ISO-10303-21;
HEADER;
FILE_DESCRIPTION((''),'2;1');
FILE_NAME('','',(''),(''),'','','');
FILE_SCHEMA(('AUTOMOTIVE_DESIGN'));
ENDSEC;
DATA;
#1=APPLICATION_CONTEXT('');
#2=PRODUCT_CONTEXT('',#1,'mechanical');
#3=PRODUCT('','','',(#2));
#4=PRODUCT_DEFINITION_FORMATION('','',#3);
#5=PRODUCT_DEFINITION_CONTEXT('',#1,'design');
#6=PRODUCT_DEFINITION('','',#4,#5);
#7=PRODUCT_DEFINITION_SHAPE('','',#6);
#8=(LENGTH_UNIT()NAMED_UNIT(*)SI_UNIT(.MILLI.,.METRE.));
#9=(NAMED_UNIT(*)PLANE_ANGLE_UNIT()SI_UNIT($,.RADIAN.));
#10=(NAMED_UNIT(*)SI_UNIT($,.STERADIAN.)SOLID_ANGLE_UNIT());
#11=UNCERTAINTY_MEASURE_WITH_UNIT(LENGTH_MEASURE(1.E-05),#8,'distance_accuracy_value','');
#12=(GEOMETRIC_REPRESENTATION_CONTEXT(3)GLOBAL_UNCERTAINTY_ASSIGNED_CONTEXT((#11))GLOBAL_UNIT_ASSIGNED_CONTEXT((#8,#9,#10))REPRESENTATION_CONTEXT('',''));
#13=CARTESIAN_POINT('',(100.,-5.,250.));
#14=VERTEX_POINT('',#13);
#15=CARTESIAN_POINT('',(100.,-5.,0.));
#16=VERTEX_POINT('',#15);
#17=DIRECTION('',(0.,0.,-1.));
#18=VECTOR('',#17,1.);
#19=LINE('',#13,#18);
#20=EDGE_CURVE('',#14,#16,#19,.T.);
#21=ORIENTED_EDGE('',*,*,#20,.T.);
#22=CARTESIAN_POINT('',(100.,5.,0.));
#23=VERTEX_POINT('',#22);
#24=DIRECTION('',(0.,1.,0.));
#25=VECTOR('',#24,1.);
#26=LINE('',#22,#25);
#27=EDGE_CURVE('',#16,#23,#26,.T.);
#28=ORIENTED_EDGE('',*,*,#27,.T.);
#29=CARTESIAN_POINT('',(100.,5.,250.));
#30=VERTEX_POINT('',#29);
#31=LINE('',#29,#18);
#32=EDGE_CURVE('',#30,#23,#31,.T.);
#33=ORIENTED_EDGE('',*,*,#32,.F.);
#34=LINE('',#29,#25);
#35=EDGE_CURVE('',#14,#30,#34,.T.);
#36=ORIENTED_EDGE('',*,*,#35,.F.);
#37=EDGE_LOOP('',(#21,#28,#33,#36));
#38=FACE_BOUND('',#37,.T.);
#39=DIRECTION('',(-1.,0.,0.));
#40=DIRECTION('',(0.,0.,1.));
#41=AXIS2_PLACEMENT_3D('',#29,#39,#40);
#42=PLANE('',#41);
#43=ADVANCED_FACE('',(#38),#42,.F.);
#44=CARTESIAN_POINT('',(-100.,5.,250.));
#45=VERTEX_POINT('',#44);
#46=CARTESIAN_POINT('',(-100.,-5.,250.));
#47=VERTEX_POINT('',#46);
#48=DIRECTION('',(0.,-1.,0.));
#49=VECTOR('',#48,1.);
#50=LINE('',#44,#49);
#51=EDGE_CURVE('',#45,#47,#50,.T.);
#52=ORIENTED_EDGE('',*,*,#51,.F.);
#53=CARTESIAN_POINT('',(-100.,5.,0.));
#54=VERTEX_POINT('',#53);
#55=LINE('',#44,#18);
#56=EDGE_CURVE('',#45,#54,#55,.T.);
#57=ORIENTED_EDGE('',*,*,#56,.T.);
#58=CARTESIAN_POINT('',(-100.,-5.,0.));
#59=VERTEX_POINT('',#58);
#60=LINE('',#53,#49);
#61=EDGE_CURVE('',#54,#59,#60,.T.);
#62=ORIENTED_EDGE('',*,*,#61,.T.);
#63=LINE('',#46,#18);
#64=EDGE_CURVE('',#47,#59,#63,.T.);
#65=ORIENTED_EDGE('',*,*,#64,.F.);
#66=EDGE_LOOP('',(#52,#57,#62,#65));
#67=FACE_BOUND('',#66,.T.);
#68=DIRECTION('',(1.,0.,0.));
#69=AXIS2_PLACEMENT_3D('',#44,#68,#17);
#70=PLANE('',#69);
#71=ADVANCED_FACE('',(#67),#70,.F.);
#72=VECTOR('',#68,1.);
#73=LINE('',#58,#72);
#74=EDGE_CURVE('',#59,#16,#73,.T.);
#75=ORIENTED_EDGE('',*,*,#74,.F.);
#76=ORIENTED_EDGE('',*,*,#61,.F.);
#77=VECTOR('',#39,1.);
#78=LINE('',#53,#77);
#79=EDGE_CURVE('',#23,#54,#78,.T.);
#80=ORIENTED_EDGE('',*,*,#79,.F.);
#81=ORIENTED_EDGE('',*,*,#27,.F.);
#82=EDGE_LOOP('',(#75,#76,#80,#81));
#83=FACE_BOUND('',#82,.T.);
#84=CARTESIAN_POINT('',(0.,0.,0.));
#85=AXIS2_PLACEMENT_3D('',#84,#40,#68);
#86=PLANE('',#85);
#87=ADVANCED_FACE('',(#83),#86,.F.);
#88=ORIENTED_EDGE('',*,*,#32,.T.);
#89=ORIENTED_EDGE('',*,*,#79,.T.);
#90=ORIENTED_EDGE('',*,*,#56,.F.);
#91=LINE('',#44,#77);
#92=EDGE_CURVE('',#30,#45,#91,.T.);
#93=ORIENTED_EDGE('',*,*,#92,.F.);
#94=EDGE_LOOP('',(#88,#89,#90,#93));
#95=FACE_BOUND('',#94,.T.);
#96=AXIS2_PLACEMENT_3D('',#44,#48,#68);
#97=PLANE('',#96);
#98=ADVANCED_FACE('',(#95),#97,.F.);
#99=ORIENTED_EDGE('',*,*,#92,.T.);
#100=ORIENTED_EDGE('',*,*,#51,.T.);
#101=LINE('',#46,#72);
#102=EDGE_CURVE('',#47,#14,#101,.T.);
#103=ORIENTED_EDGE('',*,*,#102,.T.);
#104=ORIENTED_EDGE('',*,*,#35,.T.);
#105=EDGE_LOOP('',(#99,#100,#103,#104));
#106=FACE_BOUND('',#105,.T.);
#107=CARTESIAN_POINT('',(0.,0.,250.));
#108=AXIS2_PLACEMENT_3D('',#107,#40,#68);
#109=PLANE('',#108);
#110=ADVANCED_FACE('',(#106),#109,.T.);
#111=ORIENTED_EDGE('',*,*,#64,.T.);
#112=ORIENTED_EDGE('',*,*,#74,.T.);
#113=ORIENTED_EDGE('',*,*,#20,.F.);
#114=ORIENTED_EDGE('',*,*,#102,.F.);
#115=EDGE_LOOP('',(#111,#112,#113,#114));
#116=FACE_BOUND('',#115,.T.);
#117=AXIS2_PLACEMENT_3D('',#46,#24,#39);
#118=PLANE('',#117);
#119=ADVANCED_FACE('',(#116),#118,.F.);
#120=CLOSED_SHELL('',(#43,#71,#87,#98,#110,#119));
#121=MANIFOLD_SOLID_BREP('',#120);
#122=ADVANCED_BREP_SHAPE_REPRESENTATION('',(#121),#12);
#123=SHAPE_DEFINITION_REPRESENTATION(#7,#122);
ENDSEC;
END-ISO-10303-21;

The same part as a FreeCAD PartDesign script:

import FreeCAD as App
import Part
import Sketcher


def add_polygon(sketch, points):
    """Adds a closed chain of lines whose ends are joined by coincident constraints."""
    first, n = sketch.GeometryCount, len(points)
    for a, b in zip(points, points[1:] + points[:1]):
        sketch.addGeometry(Part.LineSegment(App.Vector(*a, 0), App.Vector(*b, 0)), False)
    for i in range(n):
        sketch.addConstraint(Sketcher.Constraint("Coincident", first + i, 2, first + (i + 1) % n, 1))

doc = App.newDocument("Part")
body = doc.addObject("PartDesign::Body", "Body")

# Sketch on XY plane
sketch1 = body.newObject("Sketcher::SketchObject", "Sketch")
sketch1.AttachmentSupport = (doc.getObject("XY_Plane"), [""])
sketch1.MapMode = "FlatFace"
add_polygon(sketch1, [(-100, 5), (-100, -5), (100, -5), (100, 5)])  # lines 0-3
sketch1.addConstraint([
    Sketcher.Constraint("Vertical", 0),
    Sketcher.Constraint("Horizontal", 1),
    Sketcher.Constraint("Vertical", 2),
    Sketcher.Constraint("Horizontal", 3),
    Sketcher.Constraint("Symmetric", 0, 2, 2, 2, -1, 1),
    Sketcher.Constraint("DistanceX", 1, 1, 1, 2, 200.0),
    Sketcher.Constraint("DistanceY", 0, 2, 0, 1, 10.0),
])
pad1 = body.newObject("PartDesign::Pad", "Pad")
pad1.Profile = sketch1
pad1.Length = 250

doc.recompute()
